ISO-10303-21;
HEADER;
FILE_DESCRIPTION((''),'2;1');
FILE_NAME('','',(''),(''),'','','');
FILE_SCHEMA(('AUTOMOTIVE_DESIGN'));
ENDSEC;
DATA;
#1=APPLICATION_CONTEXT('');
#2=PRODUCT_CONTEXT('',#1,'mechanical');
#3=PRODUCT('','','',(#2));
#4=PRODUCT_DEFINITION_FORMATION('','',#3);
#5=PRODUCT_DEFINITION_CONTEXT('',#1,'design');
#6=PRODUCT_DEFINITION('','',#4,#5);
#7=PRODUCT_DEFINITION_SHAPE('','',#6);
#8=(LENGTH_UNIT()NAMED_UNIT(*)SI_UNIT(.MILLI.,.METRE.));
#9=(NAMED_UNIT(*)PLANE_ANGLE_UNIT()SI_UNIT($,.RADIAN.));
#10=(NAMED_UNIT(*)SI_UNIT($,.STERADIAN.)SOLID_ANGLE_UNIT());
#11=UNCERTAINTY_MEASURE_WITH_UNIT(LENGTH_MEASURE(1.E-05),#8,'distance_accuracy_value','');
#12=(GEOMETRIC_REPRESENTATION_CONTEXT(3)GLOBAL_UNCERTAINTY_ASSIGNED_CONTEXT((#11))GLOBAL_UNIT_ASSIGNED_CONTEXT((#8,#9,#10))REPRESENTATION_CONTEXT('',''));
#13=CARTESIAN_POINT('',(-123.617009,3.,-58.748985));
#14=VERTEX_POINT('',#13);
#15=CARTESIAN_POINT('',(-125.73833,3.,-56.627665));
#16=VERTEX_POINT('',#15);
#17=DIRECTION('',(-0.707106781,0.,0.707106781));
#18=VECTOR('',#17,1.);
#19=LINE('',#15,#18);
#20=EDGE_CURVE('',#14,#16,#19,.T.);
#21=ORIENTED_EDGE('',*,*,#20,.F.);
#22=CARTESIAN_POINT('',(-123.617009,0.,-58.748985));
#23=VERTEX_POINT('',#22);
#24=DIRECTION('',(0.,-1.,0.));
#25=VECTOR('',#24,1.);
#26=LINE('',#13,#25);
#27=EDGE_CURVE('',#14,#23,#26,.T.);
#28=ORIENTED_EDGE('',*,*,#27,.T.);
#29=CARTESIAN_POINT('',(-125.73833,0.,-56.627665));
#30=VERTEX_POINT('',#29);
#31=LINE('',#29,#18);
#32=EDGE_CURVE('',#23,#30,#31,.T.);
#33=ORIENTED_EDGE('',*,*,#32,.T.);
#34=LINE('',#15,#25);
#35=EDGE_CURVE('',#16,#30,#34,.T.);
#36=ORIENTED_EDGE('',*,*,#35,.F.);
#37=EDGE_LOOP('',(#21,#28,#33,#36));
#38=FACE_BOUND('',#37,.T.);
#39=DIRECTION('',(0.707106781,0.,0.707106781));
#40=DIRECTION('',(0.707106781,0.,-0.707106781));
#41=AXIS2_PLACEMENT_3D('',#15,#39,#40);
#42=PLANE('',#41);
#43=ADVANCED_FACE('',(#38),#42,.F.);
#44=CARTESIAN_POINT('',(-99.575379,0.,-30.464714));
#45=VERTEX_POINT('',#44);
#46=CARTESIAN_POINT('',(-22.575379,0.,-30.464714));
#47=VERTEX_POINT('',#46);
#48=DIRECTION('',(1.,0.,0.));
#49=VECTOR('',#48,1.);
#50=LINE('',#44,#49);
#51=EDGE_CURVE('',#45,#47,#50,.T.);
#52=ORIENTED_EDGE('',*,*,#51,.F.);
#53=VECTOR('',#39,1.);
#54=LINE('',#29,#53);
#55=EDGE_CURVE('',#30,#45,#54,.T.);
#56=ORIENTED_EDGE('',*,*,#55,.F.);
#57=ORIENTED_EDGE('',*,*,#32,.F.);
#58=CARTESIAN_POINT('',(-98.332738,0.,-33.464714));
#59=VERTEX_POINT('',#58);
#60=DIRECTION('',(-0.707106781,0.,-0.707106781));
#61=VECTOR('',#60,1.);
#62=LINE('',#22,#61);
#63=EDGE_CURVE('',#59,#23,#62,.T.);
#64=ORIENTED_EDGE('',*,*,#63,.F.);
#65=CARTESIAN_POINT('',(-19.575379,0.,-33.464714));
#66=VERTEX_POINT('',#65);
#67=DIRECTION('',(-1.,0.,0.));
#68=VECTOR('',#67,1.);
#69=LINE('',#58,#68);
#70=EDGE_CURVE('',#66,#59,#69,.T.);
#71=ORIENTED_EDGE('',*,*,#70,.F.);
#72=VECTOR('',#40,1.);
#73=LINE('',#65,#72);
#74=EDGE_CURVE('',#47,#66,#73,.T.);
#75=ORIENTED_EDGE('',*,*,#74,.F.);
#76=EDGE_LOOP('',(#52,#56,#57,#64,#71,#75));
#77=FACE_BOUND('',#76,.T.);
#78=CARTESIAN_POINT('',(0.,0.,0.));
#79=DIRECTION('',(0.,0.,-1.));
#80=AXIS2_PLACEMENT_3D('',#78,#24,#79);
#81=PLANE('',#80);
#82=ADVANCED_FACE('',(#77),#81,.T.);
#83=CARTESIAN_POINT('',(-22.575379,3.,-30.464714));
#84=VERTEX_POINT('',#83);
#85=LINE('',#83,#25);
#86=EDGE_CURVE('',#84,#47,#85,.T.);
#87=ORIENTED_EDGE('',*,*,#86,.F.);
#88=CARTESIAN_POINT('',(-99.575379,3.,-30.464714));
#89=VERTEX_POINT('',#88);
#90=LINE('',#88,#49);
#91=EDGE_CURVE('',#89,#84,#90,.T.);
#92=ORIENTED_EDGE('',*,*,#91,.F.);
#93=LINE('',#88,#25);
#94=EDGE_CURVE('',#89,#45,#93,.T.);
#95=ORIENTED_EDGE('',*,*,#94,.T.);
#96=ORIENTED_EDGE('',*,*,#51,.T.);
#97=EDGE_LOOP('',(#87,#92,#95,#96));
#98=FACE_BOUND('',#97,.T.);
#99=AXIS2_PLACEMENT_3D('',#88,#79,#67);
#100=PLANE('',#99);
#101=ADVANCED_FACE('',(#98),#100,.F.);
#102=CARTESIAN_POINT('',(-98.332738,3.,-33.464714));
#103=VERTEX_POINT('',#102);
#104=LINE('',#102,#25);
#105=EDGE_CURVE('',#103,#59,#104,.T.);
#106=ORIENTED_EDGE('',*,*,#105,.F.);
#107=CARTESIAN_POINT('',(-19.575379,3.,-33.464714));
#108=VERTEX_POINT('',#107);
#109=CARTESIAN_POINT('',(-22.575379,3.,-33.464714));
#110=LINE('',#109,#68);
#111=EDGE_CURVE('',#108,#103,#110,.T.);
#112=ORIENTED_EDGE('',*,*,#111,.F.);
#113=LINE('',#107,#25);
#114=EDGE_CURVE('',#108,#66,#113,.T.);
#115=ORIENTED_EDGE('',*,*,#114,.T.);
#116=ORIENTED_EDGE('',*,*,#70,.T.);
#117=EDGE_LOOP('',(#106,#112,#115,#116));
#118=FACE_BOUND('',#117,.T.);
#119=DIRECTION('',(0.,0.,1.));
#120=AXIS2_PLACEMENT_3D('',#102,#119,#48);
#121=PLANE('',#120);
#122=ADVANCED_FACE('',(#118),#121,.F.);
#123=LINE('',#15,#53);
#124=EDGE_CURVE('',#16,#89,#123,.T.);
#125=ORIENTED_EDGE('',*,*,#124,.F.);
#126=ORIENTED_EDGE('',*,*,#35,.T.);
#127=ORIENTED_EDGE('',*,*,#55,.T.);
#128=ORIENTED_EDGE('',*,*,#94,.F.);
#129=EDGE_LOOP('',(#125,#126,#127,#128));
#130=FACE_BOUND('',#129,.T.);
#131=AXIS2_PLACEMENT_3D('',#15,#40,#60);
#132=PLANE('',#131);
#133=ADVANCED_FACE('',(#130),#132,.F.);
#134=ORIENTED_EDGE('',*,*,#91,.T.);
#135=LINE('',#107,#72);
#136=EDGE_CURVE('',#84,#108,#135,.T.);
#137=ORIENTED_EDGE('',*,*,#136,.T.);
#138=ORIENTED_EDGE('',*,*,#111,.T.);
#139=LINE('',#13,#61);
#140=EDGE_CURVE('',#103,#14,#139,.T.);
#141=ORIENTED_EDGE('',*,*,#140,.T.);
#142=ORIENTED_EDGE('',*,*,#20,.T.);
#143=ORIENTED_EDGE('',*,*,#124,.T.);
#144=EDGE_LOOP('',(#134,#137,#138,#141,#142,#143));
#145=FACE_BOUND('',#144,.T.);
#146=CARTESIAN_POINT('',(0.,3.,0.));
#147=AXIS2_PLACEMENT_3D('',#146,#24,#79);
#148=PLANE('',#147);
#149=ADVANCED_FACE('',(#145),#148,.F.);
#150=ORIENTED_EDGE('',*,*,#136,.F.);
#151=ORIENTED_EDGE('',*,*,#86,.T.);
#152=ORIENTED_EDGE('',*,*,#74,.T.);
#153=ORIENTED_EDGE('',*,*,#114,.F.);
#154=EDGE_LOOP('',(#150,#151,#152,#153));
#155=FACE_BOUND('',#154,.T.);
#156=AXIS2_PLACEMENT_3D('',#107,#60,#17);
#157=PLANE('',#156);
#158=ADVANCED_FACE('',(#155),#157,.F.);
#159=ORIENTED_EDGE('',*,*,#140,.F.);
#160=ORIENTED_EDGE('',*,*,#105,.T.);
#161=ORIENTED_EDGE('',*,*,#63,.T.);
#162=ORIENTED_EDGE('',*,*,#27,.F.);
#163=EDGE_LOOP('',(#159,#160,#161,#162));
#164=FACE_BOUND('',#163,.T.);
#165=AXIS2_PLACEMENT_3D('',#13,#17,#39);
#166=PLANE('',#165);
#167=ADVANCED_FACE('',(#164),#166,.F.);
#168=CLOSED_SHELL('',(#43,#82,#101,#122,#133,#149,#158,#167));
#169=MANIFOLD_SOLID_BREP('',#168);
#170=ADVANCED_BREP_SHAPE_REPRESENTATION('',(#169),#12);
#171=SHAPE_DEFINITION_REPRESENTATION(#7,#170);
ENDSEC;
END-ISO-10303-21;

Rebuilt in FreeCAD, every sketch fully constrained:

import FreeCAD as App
import Part
import Sketcher
from FreeCAD import Vector
Q = App.Units.Quantity

doc = App.newDocument("Part")
params = doc.addObject("Spreadsheet::Sheet", "Params")
for row, (alias, value) in enumerate([
    ("sketch1_width", "77 mm"),
    ("sketch1_length", "37 mm"),
    ("sketch1_length2", "3 mm"),
    ("pad1_length", "3 mm"),
], start=1):
    params.set(f"A{row}", alias)
    params.set(f"B{row}", "=" + value)
    params.setAlias(f"B{row}", alias)

body = doc.addObject("PartDesign::Body", "Body")

# Sketch on XZ plane
sketch1 = body.newObject("Sketcher::SketchObject", "Sketch")
sketch1.AttachmentSupport = (doc.getObject("XZ_Plane"), [""])
sketch1.MapMode = "FlatFace"
sketch1.addGeometry([
    Part.LineSegment(Vector(-125.7, -56.6, 0), Vector(-99.6, -30.5, 0)),  # 0
    Part.LineSegment(Vector(-99.6, -30.5, 0), Vector(-22.6, -30.5, 0)),  # 1
    Part.LineSegment(Vector(-22.6, -30.5, 0), Vector(-19.6, -33.5, 0)),  # 2
    Part.LineSegment(Vector(-19.6, -33.5, 0), Vector(-98.3, -33.5, 0)),  # 3
    Part.LineSegment(Vector(-98.3, -33.5, 0), Vector(-123.6, -58.7, 0)),  # 4
    Part.LineSegment(Vector(-123.6, -58.7, 0), Vector(-125.7, -56.6, 0)),  # 5
], False)
sketch1.addConstraint([
    Sketcher.Constraint("Coincident", 0, 2, 1, 1),
    Sketcher.Constraint("Coincident", 1, 2, 2, 1),
    Sketcher.Constraint("Coincident", 2, 2, 3, 1),
    Sketcher.Constraint("Coincident", 3, 2, 4, 1),
    Sketcher.Constraint("Coincident", 4, 2, 5, 1),
    Sketcher.Constraint("Coincident", 5, 2, 0, 1),
    Sketcher.Constraint("Horizontal", 1),
    Sketcher.Constraint("Horizontal", 3),
    Sketcher.Constraint("Perpendicular", 0, 2),
    Sketcher.Constraint("Perpendicular", 2, 4),
    Sketcher.Constraint("Perpendicular", 4, 5),
    Sketcher.Constraint("DistanceX", 1, 1, 1, 2, 77.0),
    Sketcher.Constraint("Angle", 0, Q("45 deg")),
    Sketcher.Constraint("Distance", 0, 37.0),
    Sketcher.Constraint("Distance", 5, 3.0),
    Sketcher.Constraint("DistanceX", 1, 2, 2, 2, 3.0),
    Sketcher.Constraint("DistanceX", 0, 2, -1, 1, 99.575379),
    Sketcher.Constraint("DistanceY", 0, 2, -1, 1, 30.464714),
])
sketch1.setExpression("Constraints[11]", "Params.sketch1_width")
sketch1.setExpression("Constraints[13]", "Params.sketch1_length")
sketch1.setExpression("Constraints[14]", "Params.sketch1_length2")
pad1 = body.newObject("PartDesign::Pad", "Pad")
pad1.Profile = sketch1
pad1.setExpression("Length", "Params.pad1_length")
pad1.Reversed = True

doc.recompute()
